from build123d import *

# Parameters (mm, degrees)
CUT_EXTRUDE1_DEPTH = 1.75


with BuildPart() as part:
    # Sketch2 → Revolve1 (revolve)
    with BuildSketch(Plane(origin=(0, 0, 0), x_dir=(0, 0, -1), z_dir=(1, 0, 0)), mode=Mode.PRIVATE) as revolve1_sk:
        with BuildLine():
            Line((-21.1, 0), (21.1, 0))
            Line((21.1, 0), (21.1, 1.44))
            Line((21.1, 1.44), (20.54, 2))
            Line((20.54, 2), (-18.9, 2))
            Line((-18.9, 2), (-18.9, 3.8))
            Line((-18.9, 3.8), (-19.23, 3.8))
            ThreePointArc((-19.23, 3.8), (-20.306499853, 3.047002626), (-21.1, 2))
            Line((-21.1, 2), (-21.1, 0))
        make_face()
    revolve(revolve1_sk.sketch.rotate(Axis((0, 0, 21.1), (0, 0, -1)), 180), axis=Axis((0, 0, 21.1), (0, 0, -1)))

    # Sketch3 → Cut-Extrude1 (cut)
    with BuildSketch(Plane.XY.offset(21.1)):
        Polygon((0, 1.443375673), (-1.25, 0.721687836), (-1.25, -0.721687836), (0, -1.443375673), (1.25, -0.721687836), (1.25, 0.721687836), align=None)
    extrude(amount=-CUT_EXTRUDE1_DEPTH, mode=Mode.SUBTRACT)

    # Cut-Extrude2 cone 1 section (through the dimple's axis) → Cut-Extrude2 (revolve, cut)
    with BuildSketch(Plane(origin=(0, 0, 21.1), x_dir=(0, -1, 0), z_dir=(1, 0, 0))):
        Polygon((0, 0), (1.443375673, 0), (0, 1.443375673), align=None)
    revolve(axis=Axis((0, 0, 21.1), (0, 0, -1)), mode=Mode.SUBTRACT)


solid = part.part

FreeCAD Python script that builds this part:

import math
import FreeCAD as App
import Part
import Sketcher

V = App.Vector
Q = App.Units.Quantity

doc = App.newDocument("Part")
body = doc.addObject("PartDesign::Body", "Body")

# Sketch on YZ plane
sketch1 = doc.addObject("Sketcher::SketchObject", "Sketch")
body.addObject(sketch1)
sketch1.AttachmentSupport = (doc.YZ_Plane, [""])
sketch1.MapMode = "FlatFace"
sketch1.addGeometry([
    Part.LineSegment(V(0, 21.1, 0), V(0, -21.1, 0)),  # 0
    Part.LineSegment(V(0, -21.1, 0), V(1.44, -21.1, 0)),  # 1
    Part.LineSegment(V(1.44, -21.1, 0), V(2, -20.54, 0)),  # 2
    Part.LineSegment(V(2, -20.54, 0), V(2, 18.9, 0)),  # 3
    Part.LineSegment(V(2, 18.9, 0), V(3.8, 18.9, 0)),  # 4
    Part.LineSegment(V(3.8, 18.9, 0), V(3.8, 19.23, 0)),  # 5
    Part.ArcOfCircle(Part.Circle(V(0, 17.37, 0), V(0, 0, 1), 4.23), math.radians(26), math.radians(62)),  # 6
    Part.LineSegment(V(2, 21.1, 0), V(0, 21.1, 0)),  # 7
], False)
sketch1.addConstraint([
    Sketcher.Constraint("Coincident", 0, 2, 1, 1),
    Sketcher.Constraint("Coincident", 1, 2, 2, 1),
    Sketcher.Constraint("Coincident", 2, 2, 3, 1),
    Sketcher.Constraint("Coincident", 3, 2, 4, 1),
    Sketcher.Constraint("Coincident", 4, 2, 5, 1),
    Sketcher.Constraint("Coincident", 5, 2, 6, 1),
    Sketcher.Constraint("Coincident", 6, 2, 7, 1),
    Sketcher.Constraint("Coincident", 7, 2, 0, 1),
    Sketcher.Constraint("Vertical", 0),
    Sketcher.Constraint("Horizontal", 1),
    Sketcher.Constraint("Vertical", 3),
    Sketcher.Constraint("Horizontal", 4),
    Sketcher.Constraint("Vertical", 5),
    Sketcher.Constraint("Horizontal", 7),
    Sketcher.Constraint("Symmetric", 0, 2, 7, 2, -1, 1),
    Sketcher.Constraint("PointOnObject", 6, 3, -2),
    Sketcher.Constraint("Vertical", 3, 2, 6, 2),
    Sketcher.Constraint("DistanceX", 7, 2, 7, 1, Q("2 mm")),
    Sketcher.Constraint("Angle", 2, Q("45 deg")),
    Sketcher.Constraint("DistanceX", 4, 1, 4, 2, Q("1.8 mm")),
    Sketcher.Constraint("DistanceY", 0, 2, 0, 1, Q("42.2 mm")),
    Sketcher.Constraint("DistanceY", 1, 2, 3, 2, Q("40 mm")),
    Sketcher.Constraint("DistanceX", 1, 1, 1, 2, Q("1.44 mm")),
    Sketcher.Constraint("DistanceY", 5, 1, 5, 2, Q("0.33 mm")),
])
revolution = doc.addObject("PartDesign::Revolution", "Revolution")
body.addObject(revolution)
revolution.Profile = sketch1
revolution.ReferenceAxis = (sketch1, ["V_Axis"])
revolution.Angle = 360

# Sketch on XY plane
sketch2 = doc.addObject("Sketcher::SketchObject", "Sketch001")
body.addObject(sketch2)
sketch2.AttachmentSupport = (doc.XY_Plane, [""])
sketch2.MapMode = "FlatFace"
sketch2.AttachmentOffset = App.Placement(V(0, 0, 21.1), App.Rotation())
sketch2.addGeometry([
    Part.LineSegment(V(0, 1.4, 0), V(-1.2, 0.7, 0)),  # 0
    Part.LineSegment(V(-1.2, 0.7, 0), V(-1.2, -0.7, 0)),  # 1
    Part.LineSegment(V(-1.2, -0.7, 0), V(0, -1.4, 0)),  # 2
    Part.LineSegment(V(0, -1.4, 0), V(1.2, -0.7, 0)),  # 3
    Part.LineSegment(V(1.2, -0.7, 0), V(1.2, 0.7, 0)),  # 4
    Part.LineSegment(V(1.2, 0.7, 0), V(0, 1.4, 0)),  # 5
], False)
sketch2.addConstraint([
    Sketcher.Constraint("Coincident", 0, 2, 1, 1),
    Sketcher.Constraint("Coincident", 1, 2, 2, 1),
    Sketcher.Constraint("Coincident", 2, 2, 3, 1),
    Sketcher.Constraint("Coincident", 3, 2, 4, 1),
    Sketcher.Constraint("Coincident", 4, 2, 5, 1),
    Sketcher.Constraint("Coincident", 5, 2, 0, 1),
    Sketcher.Constraint("Vertical", 1),
    Sketcher.Constraint("Vertical", 4),
    Sketcher.Constraint("Symmetric", 0, 2, 3, 2, -1, 1),
    Sketcher.Constraint("Symmetric", 2, 2, 5, 2, -1, 1),
    Sketcher.Constraint("PointOnObject", 2, 2, -2),
    Sketcher.Constraint("Parallel", 2, 5),
    Sketcher.Constraint("Horizontal", 1, 2, 3, 2),
    Sketcher.Constraint("Angle", 0, Q("-150 deg")),
    Sketcher.Constraint("DistanceX", 1, 2, 3, 2, Q("2.5 mm")),
    Sketcher.Constraint("DistanceY", 1, 2, 1, 1, Q("1.443376 mm")),
])
pocket1 = doc.addObject("PartDesign::Pocket", "Pocket")
body.addObject(pocket1)
pocket1.Profile = sketch2
pocket1.Length = 1.75

# Sketch on YZ plane
sketch3 = doc.addObject("Sketcher::SketchObject", "Sketch002")
body.addObject(sketch3)
sketch3.AttachmentSupport = (doc.YZ_Plane, [""])
sketch3.MapMode = "FlatFace"
sketch3.addGeometry([
    Part.LineSegment(V(0, 21.1, 0), V(-1.4, 21.1, 0)),
    Part.LineSegment(V(-1.4, 21.1, 0), V(0, 19.7, 0)),
    Part.LineSegment(V(0, 19.7, 0), V(0, 21.1, 0)),
], False)
sketch3.addConstraint([
    Sketcher.Constraint("Coincident", 0, 2, 1, 1),
    Sketcher.Constraint("Coincident", 1, 2, 2, 1),
    Sketcher.Constraint("Coincident", 2, 2, 0, 1),
    Sketcher.Constraint("Horizontal", 0),
    Sketcher.Constraint("Vertical", 2),
    Sketcher.Constraint("PointOnObject", 1, 2, -2),
    Sketcher.Constraint("Equal", 0, 2),
    Sketcher.Constraint("DistanceY", -1, 1, 0, 2, Q("21.1 mm")),
    Sketcher.Constraint("Distance", 1, Q("2.041241 mm")),
])
groove = doc.addObject("PartDesign::Groove", "Groove")
body.addObject(groove)
groove.Profile = sketch3
groove.ReferenceAxis = (sketch3, ["V_Axis"])
groove.Angle = 360

doc.recompute()
